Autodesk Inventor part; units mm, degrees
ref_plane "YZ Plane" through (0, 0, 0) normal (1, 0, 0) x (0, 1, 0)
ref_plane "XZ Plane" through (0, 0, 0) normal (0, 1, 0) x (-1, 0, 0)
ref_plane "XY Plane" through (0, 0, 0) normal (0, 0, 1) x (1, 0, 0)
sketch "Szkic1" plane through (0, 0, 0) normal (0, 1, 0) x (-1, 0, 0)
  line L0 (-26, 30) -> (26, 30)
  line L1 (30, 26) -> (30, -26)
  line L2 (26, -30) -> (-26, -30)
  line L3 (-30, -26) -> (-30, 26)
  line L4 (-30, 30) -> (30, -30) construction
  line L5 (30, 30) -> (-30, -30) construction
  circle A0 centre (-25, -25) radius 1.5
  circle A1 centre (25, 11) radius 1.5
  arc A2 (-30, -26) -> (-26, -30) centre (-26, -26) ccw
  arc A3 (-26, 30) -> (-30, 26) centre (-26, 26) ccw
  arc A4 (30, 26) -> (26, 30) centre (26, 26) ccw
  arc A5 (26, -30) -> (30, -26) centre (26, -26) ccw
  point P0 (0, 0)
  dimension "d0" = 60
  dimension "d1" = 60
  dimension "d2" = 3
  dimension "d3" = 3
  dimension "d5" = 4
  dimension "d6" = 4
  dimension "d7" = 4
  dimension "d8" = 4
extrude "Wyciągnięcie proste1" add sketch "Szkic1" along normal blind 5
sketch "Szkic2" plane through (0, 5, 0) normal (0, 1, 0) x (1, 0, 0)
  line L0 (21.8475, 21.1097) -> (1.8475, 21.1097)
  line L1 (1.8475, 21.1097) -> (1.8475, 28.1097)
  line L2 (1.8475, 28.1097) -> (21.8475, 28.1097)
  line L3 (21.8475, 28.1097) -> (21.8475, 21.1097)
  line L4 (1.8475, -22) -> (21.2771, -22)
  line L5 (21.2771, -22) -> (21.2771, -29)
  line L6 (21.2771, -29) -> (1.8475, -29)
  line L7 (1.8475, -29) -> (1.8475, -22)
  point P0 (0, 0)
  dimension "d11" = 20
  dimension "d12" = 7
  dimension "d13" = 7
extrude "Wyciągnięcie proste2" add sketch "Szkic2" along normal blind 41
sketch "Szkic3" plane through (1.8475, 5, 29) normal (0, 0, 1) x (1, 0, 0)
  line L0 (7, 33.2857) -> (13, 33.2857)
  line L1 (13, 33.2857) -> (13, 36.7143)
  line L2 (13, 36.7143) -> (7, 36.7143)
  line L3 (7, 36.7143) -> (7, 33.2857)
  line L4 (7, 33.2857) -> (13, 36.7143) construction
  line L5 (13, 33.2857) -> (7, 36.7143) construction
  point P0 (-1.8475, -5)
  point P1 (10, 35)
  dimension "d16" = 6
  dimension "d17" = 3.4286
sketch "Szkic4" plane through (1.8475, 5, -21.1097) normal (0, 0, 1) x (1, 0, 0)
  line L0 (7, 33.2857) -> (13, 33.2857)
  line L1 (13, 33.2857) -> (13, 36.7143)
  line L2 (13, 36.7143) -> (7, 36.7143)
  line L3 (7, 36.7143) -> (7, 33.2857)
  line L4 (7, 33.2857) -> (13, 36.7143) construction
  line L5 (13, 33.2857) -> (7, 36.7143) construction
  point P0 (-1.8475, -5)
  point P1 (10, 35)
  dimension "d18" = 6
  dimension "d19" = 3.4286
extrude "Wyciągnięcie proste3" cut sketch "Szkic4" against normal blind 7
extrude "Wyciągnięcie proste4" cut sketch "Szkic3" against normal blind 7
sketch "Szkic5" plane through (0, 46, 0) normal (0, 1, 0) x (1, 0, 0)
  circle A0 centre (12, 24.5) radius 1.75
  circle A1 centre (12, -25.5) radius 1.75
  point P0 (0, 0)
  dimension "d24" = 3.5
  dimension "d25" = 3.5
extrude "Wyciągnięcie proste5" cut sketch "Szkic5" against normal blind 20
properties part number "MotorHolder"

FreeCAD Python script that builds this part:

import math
import FreeCAD as App
import Part
import Sketcher
from FreeCAD import Vector


def add_polygon(sketch, points):
    """Adds a closed chain of lines whose ends are joined by coincident constraints."""
    first, n = sketch.GeometryCount, len(points)
    for a, b in zip(points, points[1:] + points[:1]):
        sketch.addGeometry(Part.LineSegment(App.Vector(*a, 0), App.Vector(*b, 0)), False)
    for i in range(n):
        sketch.addConstraint(Sketcher.Constraint("Coincident", first + i, 2, first + (i + 1) % n, 1))

doc = App.newDocument("Part")
body = doc.addObject("PartDesign::Body", "Body")

sketch1 = body.newObject("Sketcher::SketchObject", "Sketch")
sketch1.AttachmentSupport = (doc.getObject("XZ_Plane"), [""])
sketch1.MapMode = "FlatFace"
sketch1.addGeometry(Part.LineSegment(Vector(-26, 30, 0), Vector(26, 30, 0)), False)
sketch1.addGeometry(Part.ArcOfCircle(Part.Circle(Vector(26, 26, 0), Vector(0, 0, 1), 4), math.radians(0), math.radians(90)), False)
sketch1.addGeometry(Part.LineSegment(Vector(30, 26, 0), Vector(30, -26, 0)), False)
sketch1.addGeometry(Part.ArcOfCircle(Part.Circle(Vector(26, -26, 0), Vector(0, 0, 1), 4), math.radians(-90), math.radians(0)), False)
sketch1.addGeometry(Part.LineSegment(Vector(26, -30, 0), Vector(-26, -30, 0)), False)
sketch1.addGeometry(Part.ArcOfCircle(Part.Circle(Vector(-26, -26, 0), Vector(0, 0, 1), 4), math.radians(180), math.radians(270)), False)
sketch1.addGeometry(Part.LineSegment(Vector(-30, -26, 0), Vector(-30, 26, 0)), False)
sketch1.addGeometry(Part.ArcOfCircle(Part.Circle(Vector(-26, 26, 0), Vector(0, 0, 1), 4), math.radians(90), math.radians(180)), False)
sketch1.addGeometry(Part.Circle(Vector(25, -25, 0), Vector(0, 0, 1), 1.5), False)
sketch1.addGeometry(Part.Circle(Vector(-25, 11, 0), Vector(0, 0, 1), 1.5), False)
sketch1.addConstraint(Sketcher.Constraint("Tangent", 0, 2, 1, 2))
sketch1.addConstraint(Sketcher.Constraint("Tangent", 1, 1, 2, 1))
sketch1.addConstraint(Sketcher.Constraint("Tangent", 2, 2, 3, 2))
sketch1.addConstraint(Sketcher.Constraint("Tangent", 3, 1, 4, 1))
sketch1.addConstraint(Sketcher.Constraint("Tangent", 4, 2, 5, 2))
sketch1.addConstraint(Sketcher.Constraint("Tangent", 5, 1, 6, 1))
sketch1.addConstraint(Sketcher.Constraint("Tangent", 6, 2, 7, 2))
sketch1.addConstraint(Sketcher.Constraint("Tangent", 7, 1, 0, 1))
sketch1.addConstraint(Sketcher.Constraint("Horizontal", 0))
sketch1.addConstraint(Sketcher.Constraint("Vertical", 2))
sketch1.addConstraint(Sketcher.Constraint("Horizontal", 4))
sketch1.addConstraint(Sketcher.Constraint("Vertical", 6))
sketch1.addConstraint(Sketcher.Constraint("Equal", 1, 3))
sketch1.addConstraint(Sketcher.Constraint("Equal", 3, 5))
sketch1.addConstraint(Sketcher.Constraint("Equal", 5, 7))
sketch1.addConstraint(Sketcher.Constraint("Equal", 8, 9))
sketch1.addConstraint(Sketcher.Constraint("Symmetric", 1, 3, 5, 3, -1, 1))
sketch1.addConstraint(Sketcher.Constraint("Equal", 4, 2))
sketch1.addConstraint(Sketcher.Constraint("Diameter", 8, 3.0))
sketch1.addConstraint(Sketcher.Constraint("Radius", 1, 4.0))
sketch1.addConstraint(Sketcher.Constraint("DistanceX", 0, 1, 0, 2, 52.0))
sketch1.addConstraint(Sketcher.Constraint("DistanceX", -1, 1, 8, 3, 25.0))
sketch1.addConstraint(Sketcher.Constraint("DistanceY", 8, 3, -1, 1, 25.0))
sketch1.addConstraint(Sketcher.Constraint("DistanceX", 9, 3, -1, 1, 25.0))
sketch1.addConstraint(Sketcher.Constraint("DistanceY", -1, 1, 9, 3, 11.0))
pad1 = body.newObject("PartDesign::Pad", "Pad")
pad1.Profile = sketch1
pad1.Length = 5
pad1.Reversed = True

sketch2 = body.newObject("Sketcher::SketchObject", "Sketch001")
sketch2.AttachmentSupport = (doc.getObject("XZ_Plane"), [""])
sketch2.MapMode = "FlatFace"
sketch2.AttachmentOffset = App.Placement(Vector(0, 0, -5), App.Rotation())
add_polygon(sketch2, [(2, -21), (22, -21), (22, -28), (2, -28)])
add_polygon(sketch2, [(21, 22), (2, 22), (2, 29), (21, 29)])
sketch2.addConstraint(Sketcher.Constraint("Horizontal", 0))
sketch2.addConstraint(Sketcher.Constraint("Vertical", 1))
sketch2.addConstraint(Sketcher.Constraint("Horizontal", 2))
sketch2.addConstraint(Sketcher.Constraint("Vertical", 3))
sketch2.addConstraint(Sketcher.Constraint("Horizontal", 4))
sketch2.addConstraint(Sketcher.Constraint("Vertical", 5))
sketch2.addConstraint(Sketcher.Constraint("Horizontal", 6))
sketch2.addConstraint(Sketcher.Constraint("Vertical", 7))
sketch2.addConstraint(Sketcher.Constraint("Vertical", 3, 2, 4, 2))
sketch2.addConstraint(Sketcher.Constraint("Equal", 3, 5))
sketch2.addConstraint(Sketcher.Constraint("DistanceX", 0, 1, 0, 2, 20.0))
sketch2.addConstraint(Sketcher.Constraint("DistanceY", 1, 2, 1, 1, 7.0))
sketch2.addConstraint(Sketcher.Constraint("DistanceY", -1, 1, 4, 2, 22.0))
sketch2.addConstraint(Sketcher.Constraint("DistanceX", 4, 2, 4, 1, 19.4296))
sketch2.addConstraint(Sketcher.Constraint("DistanceX", -1, 1, 6, 2, 21.277))
sketch2.addConstraint(Sketcher.Constraint("DistanceY", 0, 2, -1, 1, 21.1097))
pad2 = body.newObject("PartDesign::Pad", "Pad001")
pad2.Profile = sketch2
pad2.Length = 41
pad2.Reversed = True

sketch3 = body.newObject("Sketcher::SketchObject", "Sketch002")
sketch3.AttachmentSupport = (doc.getObject("XY_Plane"), [""])
sketch3.MapMode = "FlatFace"
sketch3.AttachmentOffset = App.Placement(Vector(0, 0, -21.1097), App.Rotation())
add_polygon(sketch3, [(8.8, 41.7), (8.8, 38.3), (14.8, 38.3), (14.8, 41.7)])
sketch3.addConstraint(Sketcher.Constraint("Vertical", 0))
sketch3.addConstraint(Sketcher.Constraint("Horizontal", 1))
sketch3.addConstraint(Sketcher.Constraint("Vertical", 2))
sketch3.addConstraint(Sketcher.Constraint("Horizontal", 3))
sketch3.addConstraint(Sketcher.Constraint("DistanceX", 1, 1, 1, 2, 6.0))
sketch3.addConstraint(Sketcher.Constraint("DistanceY", 0, 2, 0, 1, 3.4286))
sketch3.addConstraint(Sketcher.Constraint("DistanceX", -1, 1, 0, 2, 8.8475))
sketch3.addConstraint(Sketcher.Constraint("DistanceY", -1, 1, 0, 2, 38.2857))
pocket1 = body.newObject("PartDesign::Pocket", "Pocket")
pocket1.Profile = sketch3
pocket1.Length = 7

sketch4 = body.newObject("Sketcher::SketchObject", "Sketch003")
sketch4.AttachmentSupport = (doc.getObject("XY_Plane"), [""])
sketch4.MapMode = "FlatFace"
sketch4.AttachmentOffset = App.Placement(Vector(0, 0, 29), App.Rotation())
add_polygon(sketch4, [(8.8, 41.7), (8.8, 38.3), (14.8, 38.3), (14.8, 41.7)])
sketch4.addConstraint(Sketcher.Constraint("Vertical", 0))
sketch4.addConstraint(Sketcher.Constraint("Horizontal", 1))
sketch4.addConstraint(Sketcher.Constraint("Vertical", 2))
sketch4.addConstraint(Sketcher.Constraint("Horizontal", 3))
sketch4.addConstraint(Sketcher.Constraint("DistanceX", 1, 1, 1, 2, 6.0))
sketch4.addConstraint(Sketcher.Constraint("DistanceY", 0, 2, 0, 1, 3.4286))
sketch4.addConstraint(Sketcher.Constraint("DistanceX", -1, 1, 0, 2, 8.8475))
sketch4.addConstraint(Sketcher.Constraint("DistanceY", -1, 1, 0, 2, 38.2857))
pocket2 = body.newObject("PartDesign::Pocket", "Pocket001")
pocket2.Profile = sketch4
pocket2.Length = 7

sketch5 = body.newObject("Sketcher::SketchObject", "Sketch004")
sketch5.AttachmentSupport = (doc.getObject("XZ_Plane"), [""])
sketch5.MapMode = "FlatFace"
sketch5.AttachmentOffset = App.Placement(Vector(0, 0, -46), App.Rotation())
sketch5.addGeometry(Part.Circle(Vector(12, -24.5, 0), Vector(0, 0, 1), 1.8), False)
sketch5.addGeometry(Part.Circle(Vector(12, 25.5, 0), Vector(0, 0, 1), 1.8), False)
sketch5.addConstraint(Sketcher.Constraint("Equal", 0, 1))
sketch5.addConstraint(Sketcher.Constraint("Vertical", 0, 3, 1, 3))
sketch5.addConstraint(Sketcher.Constraint("Diameter", 0, 3.5))
sketch5.addConstraint(Sketcher.Constraint("DistanceX", -1, 1, 0, 3, 12.0))
sketch5.addConstraint(Sketcher.Constraint("DistanceY", 0, 3, 1, 3, 50.0))
sketch5.addConstraint(Sketcher.Constraint("DistanceY", 0, 3, -1, 1, 24.5))
pocket3 = body.newObject("PartDesign::Pocket", "Pocket002")
pocket3.Profile = sketch5
pocket3.Length = 20
pocket3.Reversed = True

doc.recompute()
